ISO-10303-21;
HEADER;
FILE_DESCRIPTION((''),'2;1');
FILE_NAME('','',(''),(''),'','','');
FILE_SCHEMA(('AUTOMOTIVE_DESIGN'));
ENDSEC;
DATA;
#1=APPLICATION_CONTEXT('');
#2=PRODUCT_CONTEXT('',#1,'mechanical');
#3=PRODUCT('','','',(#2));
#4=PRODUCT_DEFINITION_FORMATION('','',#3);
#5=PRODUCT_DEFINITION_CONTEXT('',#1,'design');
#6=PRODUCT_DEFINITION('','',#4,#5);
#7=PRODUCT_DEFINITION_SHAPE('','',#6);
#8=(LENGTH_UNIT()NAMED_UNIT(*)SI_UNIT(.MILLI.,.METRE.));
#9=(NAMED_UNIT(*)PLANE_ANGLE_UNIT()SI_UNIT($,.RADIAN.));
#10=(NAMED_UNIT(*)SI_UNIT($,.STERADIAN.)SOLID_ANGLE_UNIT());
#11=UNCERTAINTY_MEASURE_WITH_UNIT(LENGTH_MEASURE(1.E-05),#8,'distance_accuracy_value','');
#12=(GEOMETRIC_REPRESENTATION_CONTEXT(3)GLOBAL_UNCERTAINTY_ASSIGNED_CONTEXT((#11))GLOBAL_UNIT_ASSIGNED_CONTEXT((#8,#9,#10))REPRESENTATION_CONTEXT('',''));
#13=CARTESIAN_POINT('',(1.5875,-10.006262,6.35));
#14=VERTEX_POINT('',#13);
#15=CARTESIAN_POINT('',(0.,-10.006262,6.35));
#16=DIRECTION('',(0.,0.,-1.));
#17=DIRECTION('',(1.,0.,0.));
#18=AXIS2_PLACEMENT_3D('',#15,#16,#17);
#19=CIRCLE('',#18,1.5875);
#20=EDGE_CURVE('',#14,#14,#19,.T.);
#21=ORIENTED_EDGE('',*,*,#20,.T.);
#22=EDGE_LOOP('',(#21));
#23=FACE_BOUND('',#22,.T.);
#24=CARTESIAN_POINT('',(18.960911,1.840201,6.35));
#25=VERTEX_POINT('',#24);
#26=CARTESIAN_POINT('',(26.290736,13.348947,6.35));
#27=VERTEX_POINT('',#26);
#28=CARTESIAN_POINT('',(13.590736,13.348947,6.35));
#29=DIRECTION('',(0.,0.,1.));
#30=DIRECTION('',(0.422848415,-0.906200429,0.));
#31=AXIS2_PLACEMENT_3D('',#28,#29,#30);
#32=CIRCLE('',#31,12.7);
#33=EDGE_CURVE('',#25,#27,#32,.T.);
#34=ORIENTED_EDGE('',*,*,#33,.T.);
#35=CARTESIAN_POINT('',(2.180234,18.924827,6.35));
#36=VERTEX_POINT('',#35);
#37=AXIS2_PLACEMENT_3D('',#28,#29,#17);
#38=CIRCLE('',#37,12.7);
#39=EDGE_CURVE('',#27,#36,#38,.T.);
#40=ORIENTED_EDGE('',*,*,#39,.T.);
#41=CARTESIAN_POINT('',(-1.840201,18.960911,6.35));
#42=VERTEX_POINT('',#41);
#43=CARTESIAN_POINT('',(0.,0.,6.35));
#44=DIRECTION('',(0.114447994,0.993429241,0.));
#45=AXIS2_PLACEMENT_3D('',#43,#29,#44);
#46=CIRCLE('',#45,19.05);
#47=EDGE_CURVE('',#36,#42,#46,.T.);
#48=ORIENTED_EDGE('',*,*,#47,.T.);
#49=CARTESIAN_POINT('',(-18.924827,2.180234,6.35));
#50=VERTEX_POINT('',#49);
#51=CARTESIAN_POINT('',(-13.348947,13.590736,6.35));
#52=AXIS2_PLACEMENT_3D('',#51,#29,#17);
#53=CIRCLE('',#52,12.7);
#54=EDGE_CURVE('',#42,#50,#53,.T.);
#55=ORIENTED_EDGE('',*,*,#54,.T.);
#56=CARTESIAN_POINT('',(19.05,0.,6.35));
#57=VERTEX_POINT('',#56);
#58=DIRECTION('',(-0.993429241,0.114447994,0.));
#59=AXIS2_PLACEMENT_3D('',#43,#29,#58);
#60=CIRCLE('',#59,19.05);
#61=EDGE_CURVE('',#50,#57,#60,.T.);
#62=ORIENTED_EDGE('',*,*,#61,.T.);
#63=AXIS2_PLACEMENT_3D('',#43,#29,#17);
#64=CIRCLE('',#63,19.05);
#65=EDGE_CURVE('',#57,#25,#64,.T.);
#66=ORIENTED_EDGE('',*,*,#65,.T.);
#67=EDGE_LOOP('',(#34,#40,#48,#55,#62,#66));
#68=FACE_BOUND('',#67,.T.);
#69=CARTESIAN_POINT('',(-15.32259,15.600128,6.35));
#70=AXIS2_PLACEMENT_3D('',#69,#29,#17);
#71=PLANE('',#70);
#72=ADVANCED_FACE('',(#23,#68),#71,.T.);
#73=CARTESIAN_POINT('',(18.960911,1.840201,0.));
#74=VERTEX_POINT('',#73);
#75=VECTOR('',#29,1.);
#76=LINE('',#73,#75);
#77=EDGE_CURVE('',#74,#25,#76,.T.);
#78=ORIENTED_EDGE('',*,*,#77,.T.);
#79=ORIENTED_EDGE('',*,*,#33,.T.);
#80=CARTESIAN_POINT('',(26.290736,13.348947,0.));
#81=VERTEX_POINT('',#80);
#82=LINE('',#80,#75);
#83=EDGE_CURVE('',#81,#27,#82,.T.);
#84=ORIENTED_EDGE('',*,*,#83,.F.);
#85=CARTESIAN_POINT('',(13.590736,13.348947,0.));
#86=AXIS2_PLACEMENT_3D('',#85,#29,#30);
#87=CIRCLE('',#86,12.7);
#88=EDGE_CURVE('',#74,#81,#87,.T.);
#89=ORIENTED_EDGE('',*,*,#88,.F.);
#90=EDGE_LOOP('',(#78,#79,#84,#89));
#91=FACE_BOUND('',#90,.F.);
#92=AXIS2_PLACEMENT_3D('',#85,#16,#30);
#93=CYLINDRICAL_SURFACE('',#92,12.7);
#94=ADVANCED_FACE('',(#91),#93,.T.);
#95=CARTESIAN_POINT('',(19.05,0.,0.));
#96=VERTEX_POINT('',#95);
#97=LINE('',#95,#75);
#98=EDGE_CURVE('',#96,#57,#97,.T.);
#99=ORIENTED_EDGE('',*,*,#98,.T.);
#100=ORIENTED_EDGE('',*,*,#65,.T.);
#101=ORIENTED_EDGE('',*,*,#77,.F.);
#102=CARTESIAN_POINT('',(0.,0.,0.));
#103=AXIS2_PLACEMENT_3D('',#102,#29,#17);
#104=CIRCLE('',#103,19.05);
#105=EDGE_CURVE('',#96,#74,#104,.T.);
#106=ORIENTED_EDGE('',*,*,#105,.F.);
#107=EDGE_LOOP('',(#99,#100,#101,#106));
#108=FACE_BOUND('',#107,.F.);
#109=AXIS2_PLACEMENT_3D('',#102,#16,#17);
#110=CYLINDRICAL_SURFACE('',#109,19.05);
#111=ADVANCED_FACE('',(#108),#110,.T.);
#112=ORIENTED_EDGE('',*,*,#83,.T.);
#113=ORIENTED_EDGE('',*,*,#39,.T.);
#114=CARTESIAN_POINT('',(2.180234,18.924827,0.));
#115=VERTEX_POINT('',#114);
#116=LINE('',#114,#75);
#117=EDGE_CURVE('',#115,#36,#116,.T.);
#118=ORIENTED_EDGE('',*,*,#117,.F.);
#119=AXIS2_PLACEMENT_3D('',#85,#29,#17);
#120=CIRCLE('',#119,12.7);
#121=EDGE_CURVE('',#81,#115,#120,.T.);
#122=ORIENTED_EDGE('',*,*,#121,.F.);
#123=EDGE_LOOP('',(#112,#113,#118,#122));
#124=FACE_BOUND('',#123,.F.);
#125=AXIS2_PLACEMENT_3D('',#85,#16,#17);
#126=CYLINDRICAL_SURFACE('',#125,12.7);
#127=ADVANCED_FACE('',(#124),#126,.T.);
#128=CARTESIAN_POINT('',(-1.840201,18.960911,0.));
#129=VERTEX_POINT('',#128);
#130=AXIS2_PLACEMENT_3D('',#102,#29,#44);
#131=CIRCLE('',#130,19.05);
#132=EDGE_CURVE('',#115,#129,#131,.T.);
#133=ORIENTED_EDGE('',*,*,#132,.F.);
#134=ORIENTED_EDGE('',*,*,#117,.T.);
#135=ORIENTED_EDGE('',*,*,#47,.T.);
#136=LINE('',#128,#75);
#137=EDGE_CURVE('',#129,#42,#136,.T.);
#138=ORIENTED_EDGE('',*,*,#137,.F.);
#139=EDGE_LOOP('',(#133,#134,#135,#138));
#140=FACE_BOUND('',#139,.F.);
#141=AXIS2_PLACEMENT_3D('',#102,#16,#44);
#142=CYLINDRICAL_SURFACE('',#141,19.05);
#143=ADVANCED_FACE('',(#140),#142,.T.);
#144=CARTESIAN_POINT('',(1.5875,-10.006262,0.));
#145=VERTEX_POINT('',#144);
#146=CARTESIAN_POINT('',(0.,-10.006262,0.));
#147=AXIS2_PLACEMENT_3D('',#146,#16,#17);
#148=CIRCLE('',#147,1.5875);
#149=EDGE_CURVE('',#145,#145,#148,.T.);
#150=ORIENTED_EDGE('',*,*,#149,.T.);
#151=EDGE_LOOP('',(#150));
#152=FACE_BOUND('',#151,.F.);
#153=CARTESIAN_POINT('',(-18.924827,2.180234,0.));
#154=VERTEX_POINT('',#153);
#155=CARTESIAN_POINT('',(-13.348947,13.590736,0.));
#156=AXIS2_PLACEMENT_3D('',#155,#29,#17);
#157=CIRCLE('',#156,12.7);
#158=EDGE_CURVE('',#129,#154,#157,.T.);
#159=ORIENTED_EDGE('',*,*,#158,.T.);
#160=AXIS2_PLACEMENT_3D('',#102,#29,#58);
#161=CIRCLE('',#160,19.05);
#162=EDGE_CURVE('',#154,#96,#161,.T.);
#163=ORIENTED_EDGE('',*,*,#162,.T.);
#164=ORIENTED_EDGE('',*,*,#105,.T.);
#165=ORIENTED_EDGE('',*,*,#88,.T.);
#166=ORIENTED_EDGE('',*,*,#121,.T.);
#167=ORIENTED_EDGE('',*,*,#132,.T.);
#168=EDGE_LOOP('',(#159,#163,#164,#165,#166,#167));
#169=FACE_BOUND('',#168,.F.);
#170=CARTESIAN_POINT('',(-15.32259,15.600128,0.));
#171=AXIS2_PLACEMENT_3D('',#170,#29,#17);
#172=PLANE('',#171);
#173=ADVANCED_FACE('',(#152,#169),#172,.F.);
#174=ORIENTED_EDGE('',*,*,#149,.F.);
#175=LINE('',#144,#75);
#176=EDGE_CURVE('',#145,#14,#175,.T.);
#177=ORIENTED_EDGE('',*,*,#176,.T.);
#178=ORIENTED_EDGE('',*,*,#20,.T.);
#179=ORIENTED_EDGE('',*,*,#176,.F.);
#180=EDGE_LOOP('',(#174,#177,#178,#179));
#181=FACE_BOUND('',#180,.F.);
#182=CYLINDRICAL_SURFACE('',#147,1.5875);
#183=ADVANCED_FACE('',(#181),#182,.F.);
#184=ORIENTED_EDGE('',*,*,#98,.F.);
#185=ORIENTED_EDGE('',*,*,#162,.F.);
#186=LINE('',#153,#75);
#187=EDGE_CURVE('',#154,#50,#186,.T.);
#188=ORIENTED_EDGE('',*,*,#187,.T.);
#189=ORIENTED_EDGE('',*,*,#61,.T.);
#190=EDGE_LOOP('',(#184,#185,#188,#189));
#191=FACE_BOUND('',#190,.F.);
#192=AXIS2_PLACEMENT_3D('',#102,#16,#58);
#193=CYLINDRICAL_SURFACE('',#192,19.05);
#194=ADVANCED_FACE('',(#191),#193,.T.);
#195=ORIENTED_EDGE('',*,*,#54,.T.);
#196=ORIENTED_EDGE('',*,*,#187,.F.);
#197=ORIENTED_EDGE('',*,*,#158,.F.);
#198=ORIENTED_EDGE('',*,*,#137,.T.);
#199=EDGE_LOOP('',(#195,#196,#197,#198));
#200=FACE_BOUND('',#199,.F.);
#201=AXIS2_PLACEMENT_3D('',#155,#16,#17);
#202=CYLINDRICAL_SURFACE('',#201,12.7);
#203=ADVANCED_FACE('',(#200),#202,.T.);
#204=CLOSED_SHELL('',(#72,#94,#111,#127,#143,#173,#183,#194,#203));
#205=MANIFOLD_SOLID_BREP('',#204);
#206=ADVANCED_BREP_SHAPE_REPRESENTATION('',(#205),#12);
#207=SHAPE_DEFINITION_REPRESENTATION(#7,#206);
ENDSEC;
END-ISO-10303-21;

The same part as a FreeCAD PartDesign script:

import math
import FreeCAD as App
import Part
import Sketcher

V = App.Vector
Q = App.Units.Quantity

doc = App.newDocument("Part")
body = doc.addObject("PartDesign::Body", "Body")

sketch1 = body.newObject("Sketcher::SketchObject", "Sketch")
sketch1.AttachmentSupport = (doc.getObject("XY_Plane"), [""])
sketch1.MapMode = "FlatFace"
sketch1.addGeometry(Part.ArcOfCircle(Part.Circle(V(-13.3, 13.6, 0), V(0, 0, 1), 12.7), math.radians(25), math.radians(244)), False)
sketch1.addGeometry(Part.ArcOfCircle(Part.Circle(V(0, 0, 0), V(0, 0, 1), 19.1), math.radians(173), math.radians(360)), False)
sketch1.addGeometry(Part.ArcOfCircle(Part.Circle(V(0, 0, 0), V(0, 0, 1), 19.1), math.radians(0), math.radians(5.54)), False)
sketch1.addGeometry(Part.ArcOfCircle(Part.Circle(V(13.6, 13.3, 0), V(0, 0, 1), 12.7), math.radians(-65), math.radians(0)), False)
sketch1.addGeometry(Part.ArcOfCircle(Part.Circle(V(13.6, 13.3, 0), V(0, 0, 1), 12.7), math.radians(0), math.radians(154)), False)
sketch1.addGeometry(Part.ArcOfCircle(Part.Circle(V(0, 0, 0), V(0, 0, 1), 19.1), math.radians(83.43), math.radians(95.54)), False)
sketch1.addConstraint(Sketcher.Constraint("Coincident", 0, 2, 1, 1))
sketch1.addConstraint(Sketcher.Constraint("Tangent", 1, 2, 2, 1))
sketch1.addConstraint(Sketcher.Constraint("Coincident", 2, 2, 3, 1))
sketch1.addConstraint(Sketcher.Constraint("Tangent", 3, 2, 4, 1))
sketch1.addConstraint(Sketcher.Constraint("Coincident", 4, 2, 5, 1))
sketch1.addConstraint(Sketcher.Constraint("Coincident", 5, 2, 0, 1))
sketch1.addConstraint(Sketcher.Constraint("Coincident", 1, 3, -1, 1))
sketch1.addConstraint(Sketcher.Constraint("Coincident", 5, 3, -1, 1))
sketch1.addConstraint(Sketcher.Constraint("Equal", 1, 2))
sketch1.addConstraint(Sketcher.Constraint("Equal", 0, 3))
sketch1.addConstraint(Sketcher.Constraint("Equal", 3, 4))
sketch1.addConstraint(Sketcher.Constraint("Equal", 2, 5))
sketch1.addConstraint(Sketcher.Constraint("PointOnObject", 1, 2, -1))
sketch1.addConstraint(Sketcher.Constraint("Horizontal", 4, 3, 3, 2))
sketch1.addConstraint(Sketcher.Constraint("Radius", 0, Q("0.5 in")))
sketch1.addConstraint(Sketcher.Constraint("Radius", 1, Q("0.75 in")))
sketch1.addConstraint(Sketcher.Constraint("DistanceY", -1, 1, 2, 2, Q("1.840201 mm")))
sketch1.addConstraint(Sketcher.Constraint("DistanceX", 5, 2, -1, 1, Q("1.840201 mm")))
sketch1.addConstraint(Sketcher.Constraint("DistanceY", 3, 3, 0, 3, Q("0.24179 mm")))
sketch1.addConstraint(Sketcher.Constraint("DistanceX", 0, 2, 0, 3, Q("5.57588 mm")))
pad1 = body.newObject("PartDesign::Pad", "Pad")
pad1.Profile = sketch1
pad1.Length = Q("0.25 in")

sketch2 = body.newObject("Sketcher::SketchObject", "Sketch001")
sketch2.AttachmentSupport = (doc.getObject("XY_Plane"), [""])
sketch2.MapMode = "FlatFace"
sketch2.addGeometry(Part.Circle(V(0, -10, 0), V(0, 0, 1), 1.6), False)
sketch2.addConstraint(Sketcher.Constraint("PointOnObject", 0, 3, -2))
sketch2.addConstraint(Sketcher.Constraint("Diameter", 0, Q("0.125 in")))
sketch2.addConstraint(Sketcher.Constraint("DistanceY", 0, 3, -1, 1, Q("10.006262 mm")))
pocket1 = body.newObject("PartDesign::Pocket", "Pocket")
pocket1.Profile = sketch2
pocket1.Type = "ThroughAll"
pocket1.Reversed = True

doc.recompute()
